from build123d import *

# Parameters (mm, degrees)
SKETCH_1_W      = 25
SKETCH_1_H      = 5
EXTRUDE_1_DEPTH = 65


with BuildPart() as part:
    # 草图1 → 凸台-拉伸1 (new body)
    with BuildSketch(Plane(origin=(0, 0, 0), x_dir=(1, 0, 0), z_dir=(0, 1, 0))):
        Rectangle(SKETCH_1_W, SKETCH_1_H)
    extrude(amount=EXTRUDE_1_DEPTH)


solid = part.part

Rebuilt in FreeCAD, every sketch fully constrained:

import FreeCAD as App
import Part
import Sketcher

V = App.Vector

doc = App.newDocument("Part")
body = doc.addObject("PartDesign::Body", "Body")

# Sketch on XZ plane
sketch1 = body.newObject("Sketcher::SketchObject", "Sketch")
sketch1.AttachmentSupport = (doc.getObject("XZ_Plane"), [""])
sketch1.MapMode = "FlatFace"
sketch1.addGeometry(Part.LineSegment(V(-12.5, -2.5, 0), V(-12.5, 2.5, 0)), False)
sketch1.addGeometry(Part.LineSegment(V(-12.5, 2.5, 0), V(12.5, 2.5, 0)), False)
sketch1.addGeometry(Part.LineSegment(V(12.5, 2.5, 0), V(12.5, -2.5, 0)), False)
sketch1.addGeometry(Part.LineSegment(V(12.5, -2.5, 0), V(-12.5, -2.5, 0)), False)
sketch1.addConstraint(Sketcher.Constraint("Coincident", 0, 2, 1, 1))
sketch1.addConstraint(Sketcher.Constraint("Coincident", 1, 2, 2, 1))
sketch1.addConstraint(Sketcher.Constraint("Coincident", 2, 2, 3, 1))
sketch1.addConstraint(Sketcher.Constraint("Coincident", 3, 2, 0, 1))
sketch1.addConstraint(Sketcher.Constraint("Vertical", 0))
sketch1.addConstraint(Sketcher.Constraint("Horizontal", 1))
sketch1.addConstraint(Sketcher.Constraint("Vertical", 2))
sketch1.addConstraint(Sketcher.Constraint("Horizontal", 3))
sketch1.addConstraint(Sketcher.Constraint("Symmetric", 0, 2, 2, 2, -1, 1))
sketch1.addConstraint(Sketcher.Constraint("DistanceX", 1, 1, 1, 2, 25.0))
sketch1.addConstraint(Sketcher.Constraint("DistanceY", 0, 1, 0, 2, 5.0))
pad1 = body.newObject("PartDesign::Pad", "Pad")
pad1.Profile = sketch1
pad1.Length = 65
pad1.Reversed = True

doc.recompute()
